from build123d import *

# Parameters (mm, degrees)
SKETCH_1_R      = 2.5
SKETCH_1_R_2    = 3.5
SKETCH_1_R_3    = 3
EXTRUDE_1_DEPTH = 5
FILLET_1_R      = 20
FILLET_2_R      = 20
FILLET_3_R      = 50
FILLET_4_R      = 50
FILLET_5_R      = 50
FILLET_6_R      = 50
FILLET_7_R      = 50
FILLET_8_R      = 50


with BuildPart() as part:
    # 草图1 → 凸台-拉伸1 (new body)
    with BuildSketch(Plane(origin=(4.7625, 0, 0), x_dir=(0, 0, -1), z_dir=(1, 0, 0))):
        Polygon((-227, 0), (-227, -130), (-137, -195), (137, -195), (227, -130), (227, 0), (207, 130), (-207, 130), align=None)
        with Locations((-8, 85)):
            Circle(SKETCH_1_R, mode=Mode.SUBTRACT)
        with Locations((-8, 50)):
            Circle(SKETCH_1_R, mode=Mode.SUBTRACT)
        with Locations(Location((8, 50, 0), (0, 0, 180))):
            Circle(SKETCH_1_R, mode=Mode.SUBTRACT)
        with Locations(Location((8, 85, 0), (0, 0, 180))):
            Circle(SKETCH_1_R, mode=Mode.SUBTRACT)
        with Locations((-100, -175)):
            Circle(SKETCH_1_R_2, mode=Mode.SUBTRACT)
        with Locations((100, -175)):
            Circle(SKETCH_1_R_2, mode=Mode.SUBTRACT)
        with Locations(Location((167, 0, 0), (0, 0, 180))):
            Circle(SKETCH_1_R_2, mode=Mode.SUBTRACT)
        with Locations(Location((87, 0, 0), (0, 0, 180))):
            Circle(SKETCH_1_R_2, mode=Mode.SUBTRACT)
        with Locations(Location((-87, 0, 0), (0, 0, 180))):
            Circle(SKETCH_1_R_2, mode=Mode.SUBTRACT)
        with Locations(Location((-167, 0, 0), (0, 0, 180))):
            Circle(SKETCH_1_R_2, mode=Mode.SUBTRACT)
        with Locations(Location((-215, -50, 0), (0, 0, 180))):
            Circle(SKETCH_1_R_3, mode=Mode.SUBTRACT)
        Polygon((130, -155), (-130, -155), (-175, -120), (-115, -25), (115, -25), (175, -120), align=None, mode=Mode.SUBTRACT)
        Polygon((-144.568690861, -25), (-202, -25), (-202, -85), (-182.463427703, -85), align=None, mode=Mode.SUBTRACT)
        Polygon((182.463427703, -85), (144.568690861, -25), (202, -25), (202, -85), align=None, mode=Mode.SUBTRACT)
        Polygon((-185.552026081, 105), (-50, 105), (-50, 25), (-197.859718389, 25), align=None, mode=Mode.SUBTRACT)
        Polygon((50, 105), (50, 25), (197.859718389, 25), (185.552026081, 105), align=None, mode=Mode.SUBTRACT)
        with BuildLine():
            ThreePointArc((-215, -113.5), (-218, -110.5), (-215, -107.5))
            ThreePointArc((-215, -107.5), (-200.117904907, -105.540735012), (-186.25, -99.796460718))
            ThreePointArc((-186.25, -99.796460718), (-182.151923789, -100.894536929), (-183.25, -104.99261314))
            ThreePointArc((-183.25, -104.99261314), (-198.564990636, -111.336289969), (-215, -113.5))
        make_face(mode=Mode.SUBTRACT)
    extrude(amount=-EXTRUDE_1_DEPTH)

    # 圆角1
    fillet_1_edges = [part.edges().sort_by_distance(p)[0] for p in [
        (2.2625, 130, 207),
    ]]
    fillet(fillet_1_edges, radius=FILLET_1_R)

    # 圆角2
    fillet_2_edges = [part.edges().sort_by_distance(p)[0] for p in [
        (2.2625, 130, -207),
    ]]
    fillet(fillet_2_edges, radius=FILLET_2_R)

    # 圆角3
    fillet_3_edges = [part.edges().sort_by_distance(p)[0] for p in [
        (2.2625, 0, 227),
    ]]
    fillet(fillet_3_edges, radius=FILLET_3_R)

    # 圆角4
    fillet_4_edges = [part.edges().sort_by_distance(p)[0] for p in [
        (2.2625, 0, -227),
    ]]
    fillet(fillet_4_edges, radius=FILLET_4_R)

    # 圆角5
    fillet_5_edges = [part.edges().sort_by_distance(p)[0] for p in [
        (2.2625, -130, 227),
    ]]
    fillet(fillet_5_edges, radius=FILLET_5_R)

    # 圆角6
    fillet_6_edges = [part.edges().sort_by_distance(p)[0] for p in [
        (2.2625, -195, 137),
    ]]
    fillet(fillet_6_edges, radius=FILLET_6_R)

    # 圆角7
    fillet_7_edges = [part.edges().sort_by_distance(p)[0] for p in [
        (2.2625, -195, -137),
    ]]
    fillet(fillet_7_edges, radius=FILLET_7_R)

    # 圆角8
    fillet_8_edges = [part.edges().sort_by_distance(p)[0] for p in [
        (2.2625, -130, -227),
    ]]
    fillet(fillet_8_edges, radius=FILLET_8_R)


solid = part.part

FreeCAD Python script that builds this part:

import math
import FreeCAD as App
import Part
import Sketcher


def edges_at(feature, points):
    """Names of the edges that pass closest to the given points."""
    edges = feature.Shape.Edges
    near = lambda p: min(range(len(edges)), key=lambda i: edges[i].distToShape(Part.Vertex(*p))[0])
    return sorted({f"Edge{near(p) + 1}" for p in points})


def add_polygon(sketch, points):
    """Adds a closed chain of lines whose ends are joined by coincident constraints."""
    first, n = sketch.GeometryCount, len(points)
    for a, b in zip(points, points[1:] + points[:1]):
        sketch.addGeometry(Part.LineSegment(App.Vector(*a, 0), App.Vector(*b, 0)), False)
    for i in range(n):
        sketch.addConstraint(Sketcher.Constraint("Coincident", first + i, 2, first + (i + 1) % n, 1))

doc = App.newDocument("Part")
body = doc.addObject("PartDesign::Body", "Body")

# Sketch on YZ plane
sketch1 = body.newObject("Sketcher::SketchObject", "Sketch")
sketch1.AttachmentSupport = (doc.getObject("YZ_Plane"), [""])
sketch1.MapMode = "FlatFace"
sketch1.AttachmentOffset = App.Placement(App.Vector(0, 0, 4.7625), App.Rotation())
add_polygon(sketch1, [(0, 227), (-130, 227), (-195, 137), (-195, -137), (-130, -227), (0, -227), (130, -207), (130, 207)])  # lines 0-7
sketch1.addGeometry(Part.Circle(App.Vector(-175, 100, 0), App.Vector(0, 0, 1), 3.5), False)  # 8
sketch1.addGeometry(Part.ArcOfCircle(Part.Circle(App.Vector(-50, 215, 0), App.Vector(0, 0, 1), 63.5), math.radians(-180), math.radians(-150)), False)  # 9
sketch1.addGeometry(Part.ArcOfCircle(Part.Circle(App.Vector(-110.5, 215, 0), App.Vector(0, 0, 1), 3), math.radians(0), math.radians(180)), False)  # 10
sketch1.addGeometry(Part.ArcOfCircle(Part.Circle(App.Vector(-50, 215, 0), App.Vector(0, 0, 1), 57.5), math.radians(180), math.radians(210)), False)  # 11
sketch1.addGeometry(Part.ArcOfCircle(Part.Circle(App.Vector(-102.394537, 184.75, 0), App.Vector(0, 0, 1), 3), math.radians(-150), math.radians(30)), False)  # 12
add_polygon(sketch1, [(-25, 202), (-25, 144.568691), (-85, 182.463428), (-85, 202)])  # lines 13-16
sketch1.addGeometry(Part.Circle(App.Vector(-50, 215, 0), App.Vector(0, 0, 1), 3), False)  # 17
sketch1.addGeometry(Part.Circle(App.Vector(-175, -100, 0), App.Vector(0, 0, 1), 3.5), False)  # 18
add_polygon(sketch1, [(-120, -175), (-155, -130), (-155, 130), (-120, 175), (-25, 115), (-25, -115)])  # lines 19-24
add_polygon(sketch1, [(-85, -202), (-85, -182.463428), (-25, -144.568691), (-25, -202)])  # lines 25-28
sketch1.addGeometry(Part.Circle(App.Vector(0, 167, 0), App.Vector(0, 0, 1), 3.5), False)  # 29
sketch1.addGeometry(Part.Circle(App.Vector(0, 87, 0), App.Vector(0, 0, 1), 3.5), False)  # 30
add_polygon(sketch1, [(25, 197.859718), (105, 185.552026), (105, 50), (25, 50)])  # lines 31-34
sketch1.addGeometry(Part.Circle(App.Vector(0, -87, 0), App.Vector(0, 0, 1), 3.5), False)  # 35
sketch1.addGeometry(Part.Circle(App.Vector(0, -167, 0), App.Vector(0, 0, 1), 3.5), False)  # 36
sketch1.addGeometry(Part.Circle(App.Vector(50, 8, 0), App.Vector(0, 0, 1), 2.5), False)  # 37
sketch1.addGeometry(Part.Circle(App.Vector(50, -8, 0), App.Vector(0, 0, 1), 2.5), False)  # 38
sketch1.addGeometry(Part.Circle(App.Vector(85, 8, 0), App.Vector(0, 0, 1), 2.5), False)  # 39
sketch1.addGeometry(Part.Circle(App.Vector(85, -8, 0), App.Vector(0, 0, 1), 2.5), False)  # 40
add_polygon(sketch1, [(25, -50), (105, -50), (105, -185.552026), (25, -197.859718)])  # lines 41-44
sketch1.addConstraint(Sketcher.Constraint("Tangent", 9, 1, 10, 2))
sketch1.addConstraint(Sketcher.Constraint("Tangent", 10, 1, 11, 1))
sketch1.addConstraint(Sketcher.Constraint("Tangent", 11, 2, 12, 2))
sketch1.addConstraint(Sketcher.Constraint("Tangent", 12, 1, 9, 2))
sketch1.addConstraint(Sketcher.Constraint("Horizontal", 0))
sketch1.addConstraint(Sketcher.Constraint("Vertical", 2))
sketch1.addConstraint(Sketcher.Constraint("Horizontal", 4))
sketch1.addConstraint(Sketcher.Constraint("Vertical", 6))
sketch1.addConstraint(Sketcher.Constraint("Vertical", 13))
sketch1.addConstraint(Sketcher.Constraint("Vertical", 15))
sketch1.addConstraint(Sketcher.Constraint("Horizontal", 16))
sketch1.addConstraint(Sketcher.Constraint("Vertical", 20))
sketch1.addConstraint(Sketcher.Constraint("Vertical", 23))
sketch1.addConstraint(Sketcher.Constraint("Vertical", 25))
sketch1.addConstraint(Sketcher.Constraint("Vertical", 27))
sketch1.addConstraint(Sketcher.Constraint("Horizontal", 28))
sketch1.addConstraint(Sketcher.Constraint("Vertical", 32))
sketch1.addConstraint(Sketcher.Constraint("Horizontal", 33))
sketch1.addConstraint(Sketcher.Constraint("Vertical", 34))
sketch1.addConstraint(Sketcher.Constraint("Horizontal", 41))
sketch1.addConstraint(Sketcher.Constraint("Vertical", 42))
sketch1.addConstraint(Sketcher.Constraint("Vertical", 44))
sketch1.addConstraint(Sketcher.Constraint("Coincident", 11, 3, 9, 3))
sketch1.addConstraint(Sketcher.Constraint("Coincident", 17, 3, 9, 3))
sketch1.addConstraint(Sketcher.Constraint("Equal", 12, 17))
sketch1.addConstraint(Sketcher.Constraint("Equal", 8, 18))
sketch1.addConstraint(Sketcher.Constraint("Equal", 18, 29))
sketch1.addConstraint(Sketcher.Constraint("Equal", 29, 30))
sketch1.addConstraint(Sketcher.Constraint("Equal", 30, 35))
sketch1.addConstraint(Sketcher.Constraint("Equal", 35, 36))
sketch1.addConstraint(Sketcher.Constraint("Equal", 37, 38))
sketch1.addConstraint(Sketcher.Constraint("Equal", 38, 39))
sketch1.addConstraint(Sketcher.Constraint("Equal", 39, 40))
sketch1.addConstraint(Sketcher.Constraint("Symmetric", 30, 3, 35, 3, -1, 1))
sketch1.addConstraint(Sketcher.Constraint("Symmetric", 29, 3, 36, 3, -1, 1))
sketch1.addConstraint(Sketcher.Constraint("Symmetric", 4, 2, 7, 2, -1, 1))
sketch1.addConstraint(Sketcher.Constraint("Symmetric", 8, 3, 18, 3, -1))
sketch1.addConstraint(Sketcher.Constraint("Symmetric", 37, 3, 38, 3, -1))
sketch1.addConstraint(Sketcher.Constraint("Symmetric", 39, 3, 40, 3, -1))
sketch1.addConstraint(Sketcher.Constraint("Symmetric", 21, 2, 24, 2, -1))
sketch1.addConstraint(Sketcher.Constraint("Symmetric", 14, 2, 25, 2, -1))
sketch1.addConstraint(Sketcher.Constraint("Symmetric", 13, 2, 26, 2, -1))
sketch1.addConstraint(Sketcher.Constraint("Symmetric", 32, 2, 41, 2, -1))
sketch1.addConstraint(Sketcher.Constraint("Symmetric", 34, 2, 43, 2, -1))
sketch1.addConstraint(Sketcher.Constraint("PointOnObject", 29, 3, -2))
sketch1.addConstraint(Sketcher.Constraint("PointOnObject", 30, 3, -2))
sketch1.addConstraint(Sketcher.Constraint("PointOnObject", 4, 2, -2))
sketch1.addConstraint(Sketcher.Constraint("Parallel", 14, 22))
sketch1.addConstraint(Sketcher.Constraint("Parallel", 24, 26))
sketch1.addConstraint(Sketcher.Constraint("Parallel", 7, 31))
sketch1.addConstraint(Sketcher.Constraint("Parallel", 5, 43))
sketch1.addConstraint(Sketcher.Constraint("Horizontal", 9, 3, 10, 3))
sketch1.addConstraint(Sketcher.Constraint("Horizontal", 37, 3, 39, 3))
sketch1.addConstraint(Sketcher.Constraint("Vertical", 0, 2, 3, 2))
sketch1.addConstraint(Sketcher.Constraint("Vertical", 16, 2, 22, 2))
sketch1.addConstraint(Sketcher.Constraint("Equal", 15, 25))
sketch1.addConstraint(Sketcher.Constraint("Equal", 32, 42))
sketch1.addConstraint(Sketcher.Constraint("Equal", 1, 3))
sketch1.addConstraint(Sketcher.Constraint("Equal", 19, 21))
sketch1.addConstraint(Sketcher.Constraint("Diameter", 8, 7.0))
sketch1.addConstraint(Sketcher.Constraint("Diameter", 17, 6.0))
sketch1.addConstraint(Sketcher.Constraint("Diameter", 37, 5.0))
sketch1.addConstraint(Sketcher.Constraint("Radius", 9, 63.5))
sketch1.addConstraint(Sketcher.Constraint("DistanceX", 0, 2, 0, 1, 130.0))
sketch1.addConstraint(Sketcher.Constraint("DistanceX", 16, 1, 16, 2, 60.0))
sketch1.addConstraint(Sketcher.Constraint("DistanceX", 33, 2, 33, 1, 80.0))
sketch1.addConstraint(Sketcher.Constraint("DistanceY", 2, 2, 2, 1, 274.0))
sketch1.addConstraint(Sketcher.Constraint("DistanceY", 6, 1, 6, 2, 414.0))
sketch1.addConstraint(Sketcher.Constraint("DistanceY", 20, 1, 20, 2, 260.0))
sketch1.addConstraint(Sketcher.Constraint("DistanceY", 23, 2, 23, 1, 230.0))
sketch1.addConstraint(Sketcher.Constraint("DistanceX", 8, 3, -1, 1, 175.0))
sketch1.addConstraint(Sketcher.Constraint("DistanceY", -1, 1, 8, 3, 100.0))
sketch1.addConstraint(Sketcher.Constraint("DistanceX", 9, 3, -1, 1, 50.0))
sketch1.addConstraint(Sketcher.Constraint("DistanceY", -1, 1, 9, 3, 215.0))
sketch1.addConstraint(Sketcher.Constraint("DistanceY", -1, 1, 29, 3, 167.0))
sketch1.addConstraint(Sketcher.Constraint("DistanceY", -1, 1, 30, 3, 87.0))
sketch1.addConstraint(Sketcher.Constraint("DistanceX", -1, 1, 37, 3, 50.0))
sketch1.addConstraint(Sketcher.Constraint("DistanceY", -1, 1, 37, 3, 8.0))
sketch1.addConstraint(Sketcher.Constraint("DistanceX", -1, 1, 39, 3, 85.0))
sketch1.addConstraint(Sketcher.Constraint("DistanceY", -1, 1, 0, 2, 227.0))
sketch1.addConstraint(Sketcher.Constraint("DistanceX", 1, 2, -1, 1, 195.0))
sketch1.addConstraint(Sketcher.Constraint("DistanceX", -1, 1, 5, 2, 130.0))
sketch1.addConstraint(Sketcher.Constraint("DistanceX", 13, 2, -1, 1, 25.0))
sketch1.addConstraint(Sketcher.Constraint("DistanceY", -1, 1, 15, 2, 202.0))
sketch1.addConstraint(Sketcher.Constraint("DistanceX", 19, 2, -1, 1, 155.0))
sketch1.addConstraint(Sketcher.Constraint("DistanceX", 21, 2, -1, 1, 120.0))
sketch1.addConstraint(Sketcher.Constraint("DistanceY", -1, 1, 21, 2, 175.0))
sketch1.addConstraint(Sketcher.Constraint("DistanceX", -1, 1, 31, 2, 105.0))
sketch1.addConstraint(Sketcher.Constraint("DistanceY", -1, 1, 32, 2, 50.0))
sketch1.addConstraint(Sketcher.Constraint("DistanceY", 12, 1, 12, 3, 1.5))
sketch1.addConstraint(Sketcher.Constraint("DistanceY", 13, 2, 13, 1, 57.431309))
sketch1.addConstraint(Sketcher.Constraint("DistanceY", 34, 1, 34, 2, 147.859718))
pad1 = body.newObject("PartDesign::Pad", "Pad")
pad1.Profile = sketch1
pad1.Length = 5
pad1.Reversed = True
doc.recompute()

fillet = body.newObject("PartDesign::Fillet", "Fillet")
fillet.Base = (pad1, edges_at(pad1, [(2.263, 130, 207)]))
fillet.Radius = 20
doc.recompute()

fillet2 = body.newObject("PartDesign::Fillet", "Fillet001")
fillet2.Base = (fillet, edges_at(fillet, [(2.263, 130, -207)]))
fillet2.Radius = 20
doc.recompute()

fillet3 = body.newObject("PartDesign::Fillet", "Fillet002")
fillet3.Base = (fillet2, edges_at(fillet2, [(2.263, 0, 227)]))
fillet3.Radius = 50
doc.recompute()

fillet4 = body.newObject("PartDesign::Fillet", "Fillet003")
fillet4.Base = (fillet3, edges_at(fillet3, [(2.263, 0, -227)]))
fillet4.Radius = 50
doc.recompute()

fillet5 = body.newObject("PartDesign::Fillet", "Fillet004")
fillet5.Base = (fillet4, edges_at(fillet4, [(2.263, -130, 227)]))
fillet5.Radius = 50
doc.recompute()

fillet6 = body.newObject("PartDesign::Fillet", "Fillet005")
fillet6.Base = (fillet5, edges_at(fillet5, [(2.263, -195, 137)]))
fillet6.Radius = 50
doc.recompute()

fillet7 = body.newObject("PartDesign::Fillet", "Fillet006")
fillet7.Base = (fillet6, edges_at(fillet6, [(2.263, -195, -137)]))
fillet7.Radius = 50
doc.recompute()

fillet8 = body.newObject("PartDesign::Fillet", "Fillet007")
fillet8.Base = (fillet7, edges_at(fillet7, [(2.263, -130, -227)]))
fillet8.Radius = 50

doc.recompute()
